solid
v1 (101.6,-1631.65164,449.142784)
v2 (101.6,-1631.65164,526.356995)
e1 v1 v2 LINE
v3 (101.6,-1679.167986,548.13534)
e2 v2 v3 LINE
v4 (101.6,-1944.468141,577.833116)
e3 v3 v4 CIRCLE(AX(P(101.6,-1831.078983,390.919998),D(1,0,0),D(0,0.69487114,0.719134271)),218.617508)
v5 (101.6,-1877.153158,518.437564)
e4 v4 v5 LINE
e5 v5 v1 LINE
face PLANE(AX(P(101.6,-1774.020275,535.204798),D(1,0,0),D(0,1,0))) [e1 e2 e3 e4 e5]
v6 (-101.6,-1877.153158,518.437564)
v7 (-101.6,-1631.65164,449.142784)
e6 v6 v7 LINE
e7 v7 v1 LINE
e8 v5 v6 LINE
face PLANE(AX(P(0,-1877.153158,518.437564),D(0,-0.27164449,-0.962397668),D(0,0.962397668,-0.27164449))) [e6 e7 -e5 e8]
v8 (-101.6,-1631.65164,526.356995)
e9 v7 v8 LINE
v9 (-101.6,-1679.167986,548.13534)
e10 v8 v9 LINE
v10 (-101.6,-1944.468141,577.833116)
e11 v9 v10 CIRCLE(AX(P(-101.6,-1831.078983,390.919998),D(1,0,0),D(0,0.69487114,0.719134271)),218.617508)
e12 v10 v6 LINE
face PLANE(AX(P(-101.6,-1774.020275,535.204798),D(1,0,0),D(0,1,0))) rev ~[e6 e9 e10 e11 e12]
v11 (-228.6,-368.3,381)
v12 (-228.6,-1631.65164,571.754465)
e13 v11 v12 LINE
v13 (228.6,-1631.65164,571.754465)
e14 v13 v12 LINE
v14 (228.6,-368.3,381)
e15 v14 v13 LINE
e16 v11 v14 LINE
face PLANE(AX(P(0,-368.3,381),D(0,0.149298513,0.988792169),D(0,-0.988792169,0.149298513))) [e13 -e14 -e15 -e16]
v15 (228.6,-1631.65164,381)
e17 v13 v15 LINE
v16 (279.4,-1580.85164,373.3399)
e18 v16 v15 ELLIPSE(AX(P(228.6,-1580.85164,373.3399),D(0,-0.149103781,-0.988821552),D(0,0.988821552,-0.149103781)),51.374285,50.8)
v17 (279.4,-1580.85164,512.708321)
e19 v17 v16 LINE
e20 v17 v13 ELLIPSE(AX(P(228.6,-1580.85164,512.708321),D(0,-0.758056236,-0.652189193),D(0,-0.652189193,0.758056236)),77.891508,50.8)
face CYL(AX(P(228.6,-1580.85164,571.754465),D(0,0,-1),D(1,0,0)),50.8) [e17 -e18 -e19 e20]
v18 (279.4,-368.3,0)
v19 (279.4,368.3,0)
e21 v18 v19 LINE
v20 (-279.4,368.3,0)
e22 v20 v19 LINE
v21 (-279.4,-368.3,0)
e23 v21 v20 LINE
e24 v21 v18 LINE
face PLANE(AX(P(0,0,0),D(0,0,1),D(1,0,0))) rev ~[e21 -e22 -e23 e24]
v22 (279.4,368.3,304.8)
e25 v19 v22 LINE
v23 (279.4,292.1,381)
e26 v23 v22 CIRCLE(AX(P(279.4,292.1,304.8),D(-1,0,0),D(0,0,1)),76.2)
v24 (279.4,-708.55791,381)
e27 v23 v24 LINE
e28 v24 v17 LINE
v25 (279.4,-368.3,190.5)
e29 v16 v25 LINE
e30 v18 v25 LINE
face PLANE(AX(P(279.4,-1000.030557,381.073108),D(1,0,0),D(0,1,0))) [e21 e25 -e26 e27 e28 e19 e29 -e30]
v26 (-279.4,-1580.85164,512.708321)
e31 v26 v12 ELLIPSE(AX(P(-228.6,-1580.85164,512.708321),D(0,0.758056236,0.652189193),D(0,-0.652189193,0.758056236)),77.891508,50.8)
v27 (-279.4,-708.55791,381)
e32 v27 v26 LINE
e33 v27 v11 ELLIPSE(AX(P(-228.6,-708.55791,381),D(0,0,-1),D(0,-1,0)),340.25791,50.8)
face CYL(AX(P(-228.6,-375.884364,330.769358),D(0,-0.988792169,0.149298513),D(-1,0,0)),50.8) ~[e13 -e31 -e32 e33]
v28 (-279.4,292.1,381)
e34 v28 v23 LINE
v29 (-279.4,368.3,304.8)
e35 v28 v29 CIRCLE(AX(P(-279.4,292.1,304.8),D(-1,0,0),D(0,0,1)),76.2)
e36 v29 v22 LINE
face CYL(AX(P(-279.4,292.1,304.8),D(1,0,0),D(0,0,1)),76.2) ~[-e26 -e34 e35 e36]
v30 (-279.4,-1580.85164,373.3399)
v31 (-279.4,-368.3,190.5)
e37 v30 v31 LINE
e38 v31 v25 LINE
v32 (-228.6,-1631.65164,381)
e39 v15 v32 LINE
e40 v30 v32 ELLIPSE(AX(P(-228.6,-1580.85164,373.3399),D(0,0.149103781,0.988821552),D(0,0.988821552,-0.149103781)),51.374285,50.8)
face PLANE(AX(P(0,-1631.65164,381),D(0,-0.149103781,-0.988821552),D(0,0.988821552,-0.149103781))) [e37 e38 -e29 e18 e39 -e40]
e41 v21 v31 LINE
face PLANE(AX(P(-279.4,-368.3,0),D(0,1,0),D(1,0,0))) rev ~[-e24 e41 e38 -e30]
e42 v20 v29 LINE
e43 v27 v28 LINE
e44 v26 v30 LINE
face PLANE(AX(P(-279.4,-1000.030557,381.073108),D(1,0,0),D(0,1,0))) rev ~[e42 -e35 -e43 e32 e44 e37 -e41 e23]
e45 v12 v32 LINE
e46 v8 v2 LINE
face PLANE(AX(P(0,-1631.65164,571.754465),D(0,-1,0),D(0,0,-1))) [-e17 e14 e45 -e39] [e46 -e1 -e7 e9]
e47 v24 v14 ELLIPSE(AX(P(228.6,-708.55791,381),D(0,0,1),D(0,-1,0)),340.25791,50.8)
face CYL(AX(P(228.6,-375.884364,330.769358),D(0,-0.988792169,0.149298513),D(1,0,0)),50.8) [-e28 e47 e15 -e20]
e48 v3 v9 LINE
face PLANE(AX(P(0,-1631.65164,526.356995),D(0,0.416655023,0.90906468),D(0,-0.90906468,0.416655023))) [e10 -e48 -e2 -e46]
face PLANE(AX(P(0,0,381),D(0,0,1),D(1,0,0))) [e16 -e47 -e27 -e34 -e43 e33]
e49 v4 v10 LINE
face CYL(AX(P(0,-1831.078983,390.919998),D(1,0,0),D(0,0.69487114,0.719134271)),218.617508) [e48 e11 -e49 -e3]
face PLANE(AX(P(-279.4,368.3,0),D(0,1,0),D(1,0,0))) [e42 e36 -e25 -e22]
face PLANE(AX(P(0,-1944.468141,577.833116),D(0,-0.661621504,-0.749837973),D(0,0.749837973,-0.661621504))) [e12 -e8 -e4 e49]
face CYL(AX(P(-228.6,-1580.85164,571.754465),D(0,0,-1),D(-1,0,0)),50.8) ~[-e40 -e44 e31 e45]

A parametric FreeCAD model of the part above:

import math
import FreeCAD as App
import Part
import Sketcher
from FreeCAD import Vector
Q = App.Units.Quantity


def edges_at(feature, points):
    """Names of the edges that pass closest to the given points."""
    edges = feature.Shape.Edges
    near = lambda p: min(range(len(edges)), key=lambda i: edges[i].distToShape(Part.Vertex(*p))[0])
    return sorted({f"Edge{near(p) + 1}" for p in points})


def add_polygon(sketch, points):
    """Adds a closed chain of lines whose ends are joined by coincident constraints."""
    first, n = sketch.GeometryCount, len(points)
    for a, b in zip(points, points[1:] + points[:1]):
        sketch.addGeometry(Part.LineSegment(App.Vector(*a, 0), App.Vector(*b, 0)), False)
    for i in range(n):
        sketch.addConstraint(Sketcher.Constraint("Coincident", first + i, 2, first + (i + 1) % n, 1))

doc = App.newDocument("Part")
params = doc.addObject("Spreadsheet::Sheet", "Params")
for row, (alias, value) in enumerate([
    ("sketch1_width", "22 in"),
    ("sketch1_height", "29 in"),
    ("pad1_length", "15 in"),
    ("sketch2_height", "7.5 in"),
    ("pad2_length", "22 in"),
    ("pad3_length", "8 in"),
    ("fillet_radius", "2 in"),
    ("fillet2_radius", "3 in"),
], start=1):
    params.set(f"A{row}", alias)
    params.set(f"B{row}", "=" + value)
    params.setAlias(f"B{row}", alias)

body = doc.addObject("PartDesign::Body", "Body")

sketch1 = body.newObject("Sketcher::SketchObject", "Sketch")
sketch1.AttachmentSupport = (doc.getObject("XY_Plane"), [""])
sketch1.MapMode = "FlatFace"
add_polygon(sketch1, [(-279.4, 368.3), (-279.4, -368.3), (279.4, -368.3), (279.4, 368.3)])
sketch1.addConstraint([
    Sketcher.Constraint("Vertical", 0),
    Sketcher.Constraint("Horizontal", 1),
    Sketcher.Constraint("Vertical", 2),
    Sketcher.Constraint("Horizontal", 3),
    Sketcher.Constraint("Symmetric", 0, 2, 2, 2, -1, 1),
    Sketcher.Constraint("DistanceX", 1, 1, 1, 2, Q("22 in")),
    Sketcher.Constraint("DistanceY", 0, 2, 0, 1, Q("29 in")),
])
sketch1.setExpression("Constraints[9]", "Params.sketch1_width")
sketch1.setExpression("Constraints[10]", "Params.sketch1_height")
pad1 = body.newObject("PartDesign::Pad", "Pad")
pad1.Profile = sketch1
pad1.setExpression("Length", "Params.pad1_length")

sketch2 = body.newObject("Sketcher::SketchObject", "Sketch001")
sketch2.AttachmentSupport = (doc.getObject("YZ_Plane"), [""])
sketch2.MapMode = "FlatFace"
add_polygon(sketch2, [(-1631.65164, 381), (-368.3, 190.5), (-368.3, 381), (-1631.65164, 571.754465)])
sketch2.addConstraint([
    Sketcher.Constraint("Vertical", 1),
    Sketcher.Constraint("Vertical", 3),
    Sketcher.Constraint("Horizontal", 1, 2, 3, 2),
    Sketcher.Constraint("DistanceY", 1, 1, 1, 2, Q("7.5 in")),
    Sketcher.Constraint("DistanceY", -1, 1, 1, 2, Q("15 in")),
    Sketcher.Constraint("DistanceX", 0, 2, -1, 1, Q("14.5 in")),
    Sketcher.Constraint("Distance", 0, 1277.6336),
    Sketcher.Constraint("DistanceY", 3, 2, 3, 1, 190.754465),
])
sketch2.setExpression("Constraints[7]", "Params.sketch2_height")
pad2 = body.newObject("PartDesign::Pad", "Pad001")
pad2.Profile = sketch2
pad2.setExpression("Length", "Params.pad2_length")
pad2.Midplane = True

sketch3 = body.newObject("Sketcher::SketchObject", "Sketch002")
sketch3.AttachmentSupport = (doc.getObject("YZ_Plane"), [""])
sketch3.MapMode = "FlatFace"
sketch3.addGeometry([
    Part.LineSegment(Vector(-1877.153158, 518.437564, 0), Vector(-1631.65164, 449.142784, 0)),
    Part.LineSegment(Vector(-1631.65164, 449.142784, 0), Vector(-1631.65164, 526.356995, 0)),
    Part.LineSegment(Vector(-1631.65164, 526.356995, 0), Vector(-1679.167986, 548.13534, 0)),
    Part.ArcOfCircle(Part.Circle(Vector(-1831.078983, 390.919998, 0), Vector(0, 0, 1), 218.617508), math.radians(45.98305), math.radians(121.242717)),
    Part.LineSegment(Vector(-1944.468141, 577.833116, 0), Vector(-1877.153158, 518.437564, 0)),
], False)
sketch3.addConstraint([
    Sketcher.Constraint("Coincident", 0, 2, 1, 1),
    Sketcher.Constraint("Coincident", 1, 2, 2, 1),
    Sketcher.Constraint("Coincident", 2, 2, 3, 1),
    Sketcher.Constraint("Coincident", 3, 2, 4, 1),
    Sketcher.Constraint("Coincident", 4, 2, 0, 1),
    Sketcher.Constraint("Vertical", 1),
    Sketcher.Constraint("Radius", 3, 218.617508),
    Sketcher.Constraint("DistanceY", 1, 1, 1, 2, 77.214211),
    Sketcher.Constraint("DistanceX", 3, 2, 1, 2, 312.816501),
    Sketcher.Constraint("Distance", 2, 52.269489),
    Sketcher.Constraint("DistanceX", 0, 2, -1, 1, 1631.65164),
    Sketcher.Constraint("DistanceY", -1, 1, 2, 2, 548.13534),
    Sketcher.Constraint("DistanceX", 4, 2, -1, 1, 1877.153158),
    Sketcher.Constraint("DistanceY", 3, 3, 3, 2, 186.913118),
    Sketcher.Constraint("DistanceY", 1, 2, 3, 2, 51.476121),
    Sketcher.Constraint("DistanceY", 4, 2, 3, 2, 59.395552),
])
pad3 = body.newObject("PartDesign::Pad", "Pad002")
pad3.Profile = sketch3
pad3.setExpression("Length", "Params.pad3_length")
pad3.Midplane = True
doc.recompute()

fillet = body.newObject("PartDesign::Fillet", "Fillet")
fillet.Base = (pad3, edges_at(pad3, [
    (279.4, -999.976, 476.377),
    (-279.4, -999.976, 476.377),
    (-279.4, -1631.652, 476.377),
    (279.4, -1631.652, 476.377),
]))
fillet.setExpression("Radius", "Params.fillet_radius")
doc.recompute()

fillet2 = body.newObject("PartDesign::Fillet", "Fillet001")
fillet2.Base = (fillet, edges_at(fillet, [(0, 368.3, 381)]))
fillet2.setExpression("Radius", "Params.fillet2_radius")

doc.recompute()
